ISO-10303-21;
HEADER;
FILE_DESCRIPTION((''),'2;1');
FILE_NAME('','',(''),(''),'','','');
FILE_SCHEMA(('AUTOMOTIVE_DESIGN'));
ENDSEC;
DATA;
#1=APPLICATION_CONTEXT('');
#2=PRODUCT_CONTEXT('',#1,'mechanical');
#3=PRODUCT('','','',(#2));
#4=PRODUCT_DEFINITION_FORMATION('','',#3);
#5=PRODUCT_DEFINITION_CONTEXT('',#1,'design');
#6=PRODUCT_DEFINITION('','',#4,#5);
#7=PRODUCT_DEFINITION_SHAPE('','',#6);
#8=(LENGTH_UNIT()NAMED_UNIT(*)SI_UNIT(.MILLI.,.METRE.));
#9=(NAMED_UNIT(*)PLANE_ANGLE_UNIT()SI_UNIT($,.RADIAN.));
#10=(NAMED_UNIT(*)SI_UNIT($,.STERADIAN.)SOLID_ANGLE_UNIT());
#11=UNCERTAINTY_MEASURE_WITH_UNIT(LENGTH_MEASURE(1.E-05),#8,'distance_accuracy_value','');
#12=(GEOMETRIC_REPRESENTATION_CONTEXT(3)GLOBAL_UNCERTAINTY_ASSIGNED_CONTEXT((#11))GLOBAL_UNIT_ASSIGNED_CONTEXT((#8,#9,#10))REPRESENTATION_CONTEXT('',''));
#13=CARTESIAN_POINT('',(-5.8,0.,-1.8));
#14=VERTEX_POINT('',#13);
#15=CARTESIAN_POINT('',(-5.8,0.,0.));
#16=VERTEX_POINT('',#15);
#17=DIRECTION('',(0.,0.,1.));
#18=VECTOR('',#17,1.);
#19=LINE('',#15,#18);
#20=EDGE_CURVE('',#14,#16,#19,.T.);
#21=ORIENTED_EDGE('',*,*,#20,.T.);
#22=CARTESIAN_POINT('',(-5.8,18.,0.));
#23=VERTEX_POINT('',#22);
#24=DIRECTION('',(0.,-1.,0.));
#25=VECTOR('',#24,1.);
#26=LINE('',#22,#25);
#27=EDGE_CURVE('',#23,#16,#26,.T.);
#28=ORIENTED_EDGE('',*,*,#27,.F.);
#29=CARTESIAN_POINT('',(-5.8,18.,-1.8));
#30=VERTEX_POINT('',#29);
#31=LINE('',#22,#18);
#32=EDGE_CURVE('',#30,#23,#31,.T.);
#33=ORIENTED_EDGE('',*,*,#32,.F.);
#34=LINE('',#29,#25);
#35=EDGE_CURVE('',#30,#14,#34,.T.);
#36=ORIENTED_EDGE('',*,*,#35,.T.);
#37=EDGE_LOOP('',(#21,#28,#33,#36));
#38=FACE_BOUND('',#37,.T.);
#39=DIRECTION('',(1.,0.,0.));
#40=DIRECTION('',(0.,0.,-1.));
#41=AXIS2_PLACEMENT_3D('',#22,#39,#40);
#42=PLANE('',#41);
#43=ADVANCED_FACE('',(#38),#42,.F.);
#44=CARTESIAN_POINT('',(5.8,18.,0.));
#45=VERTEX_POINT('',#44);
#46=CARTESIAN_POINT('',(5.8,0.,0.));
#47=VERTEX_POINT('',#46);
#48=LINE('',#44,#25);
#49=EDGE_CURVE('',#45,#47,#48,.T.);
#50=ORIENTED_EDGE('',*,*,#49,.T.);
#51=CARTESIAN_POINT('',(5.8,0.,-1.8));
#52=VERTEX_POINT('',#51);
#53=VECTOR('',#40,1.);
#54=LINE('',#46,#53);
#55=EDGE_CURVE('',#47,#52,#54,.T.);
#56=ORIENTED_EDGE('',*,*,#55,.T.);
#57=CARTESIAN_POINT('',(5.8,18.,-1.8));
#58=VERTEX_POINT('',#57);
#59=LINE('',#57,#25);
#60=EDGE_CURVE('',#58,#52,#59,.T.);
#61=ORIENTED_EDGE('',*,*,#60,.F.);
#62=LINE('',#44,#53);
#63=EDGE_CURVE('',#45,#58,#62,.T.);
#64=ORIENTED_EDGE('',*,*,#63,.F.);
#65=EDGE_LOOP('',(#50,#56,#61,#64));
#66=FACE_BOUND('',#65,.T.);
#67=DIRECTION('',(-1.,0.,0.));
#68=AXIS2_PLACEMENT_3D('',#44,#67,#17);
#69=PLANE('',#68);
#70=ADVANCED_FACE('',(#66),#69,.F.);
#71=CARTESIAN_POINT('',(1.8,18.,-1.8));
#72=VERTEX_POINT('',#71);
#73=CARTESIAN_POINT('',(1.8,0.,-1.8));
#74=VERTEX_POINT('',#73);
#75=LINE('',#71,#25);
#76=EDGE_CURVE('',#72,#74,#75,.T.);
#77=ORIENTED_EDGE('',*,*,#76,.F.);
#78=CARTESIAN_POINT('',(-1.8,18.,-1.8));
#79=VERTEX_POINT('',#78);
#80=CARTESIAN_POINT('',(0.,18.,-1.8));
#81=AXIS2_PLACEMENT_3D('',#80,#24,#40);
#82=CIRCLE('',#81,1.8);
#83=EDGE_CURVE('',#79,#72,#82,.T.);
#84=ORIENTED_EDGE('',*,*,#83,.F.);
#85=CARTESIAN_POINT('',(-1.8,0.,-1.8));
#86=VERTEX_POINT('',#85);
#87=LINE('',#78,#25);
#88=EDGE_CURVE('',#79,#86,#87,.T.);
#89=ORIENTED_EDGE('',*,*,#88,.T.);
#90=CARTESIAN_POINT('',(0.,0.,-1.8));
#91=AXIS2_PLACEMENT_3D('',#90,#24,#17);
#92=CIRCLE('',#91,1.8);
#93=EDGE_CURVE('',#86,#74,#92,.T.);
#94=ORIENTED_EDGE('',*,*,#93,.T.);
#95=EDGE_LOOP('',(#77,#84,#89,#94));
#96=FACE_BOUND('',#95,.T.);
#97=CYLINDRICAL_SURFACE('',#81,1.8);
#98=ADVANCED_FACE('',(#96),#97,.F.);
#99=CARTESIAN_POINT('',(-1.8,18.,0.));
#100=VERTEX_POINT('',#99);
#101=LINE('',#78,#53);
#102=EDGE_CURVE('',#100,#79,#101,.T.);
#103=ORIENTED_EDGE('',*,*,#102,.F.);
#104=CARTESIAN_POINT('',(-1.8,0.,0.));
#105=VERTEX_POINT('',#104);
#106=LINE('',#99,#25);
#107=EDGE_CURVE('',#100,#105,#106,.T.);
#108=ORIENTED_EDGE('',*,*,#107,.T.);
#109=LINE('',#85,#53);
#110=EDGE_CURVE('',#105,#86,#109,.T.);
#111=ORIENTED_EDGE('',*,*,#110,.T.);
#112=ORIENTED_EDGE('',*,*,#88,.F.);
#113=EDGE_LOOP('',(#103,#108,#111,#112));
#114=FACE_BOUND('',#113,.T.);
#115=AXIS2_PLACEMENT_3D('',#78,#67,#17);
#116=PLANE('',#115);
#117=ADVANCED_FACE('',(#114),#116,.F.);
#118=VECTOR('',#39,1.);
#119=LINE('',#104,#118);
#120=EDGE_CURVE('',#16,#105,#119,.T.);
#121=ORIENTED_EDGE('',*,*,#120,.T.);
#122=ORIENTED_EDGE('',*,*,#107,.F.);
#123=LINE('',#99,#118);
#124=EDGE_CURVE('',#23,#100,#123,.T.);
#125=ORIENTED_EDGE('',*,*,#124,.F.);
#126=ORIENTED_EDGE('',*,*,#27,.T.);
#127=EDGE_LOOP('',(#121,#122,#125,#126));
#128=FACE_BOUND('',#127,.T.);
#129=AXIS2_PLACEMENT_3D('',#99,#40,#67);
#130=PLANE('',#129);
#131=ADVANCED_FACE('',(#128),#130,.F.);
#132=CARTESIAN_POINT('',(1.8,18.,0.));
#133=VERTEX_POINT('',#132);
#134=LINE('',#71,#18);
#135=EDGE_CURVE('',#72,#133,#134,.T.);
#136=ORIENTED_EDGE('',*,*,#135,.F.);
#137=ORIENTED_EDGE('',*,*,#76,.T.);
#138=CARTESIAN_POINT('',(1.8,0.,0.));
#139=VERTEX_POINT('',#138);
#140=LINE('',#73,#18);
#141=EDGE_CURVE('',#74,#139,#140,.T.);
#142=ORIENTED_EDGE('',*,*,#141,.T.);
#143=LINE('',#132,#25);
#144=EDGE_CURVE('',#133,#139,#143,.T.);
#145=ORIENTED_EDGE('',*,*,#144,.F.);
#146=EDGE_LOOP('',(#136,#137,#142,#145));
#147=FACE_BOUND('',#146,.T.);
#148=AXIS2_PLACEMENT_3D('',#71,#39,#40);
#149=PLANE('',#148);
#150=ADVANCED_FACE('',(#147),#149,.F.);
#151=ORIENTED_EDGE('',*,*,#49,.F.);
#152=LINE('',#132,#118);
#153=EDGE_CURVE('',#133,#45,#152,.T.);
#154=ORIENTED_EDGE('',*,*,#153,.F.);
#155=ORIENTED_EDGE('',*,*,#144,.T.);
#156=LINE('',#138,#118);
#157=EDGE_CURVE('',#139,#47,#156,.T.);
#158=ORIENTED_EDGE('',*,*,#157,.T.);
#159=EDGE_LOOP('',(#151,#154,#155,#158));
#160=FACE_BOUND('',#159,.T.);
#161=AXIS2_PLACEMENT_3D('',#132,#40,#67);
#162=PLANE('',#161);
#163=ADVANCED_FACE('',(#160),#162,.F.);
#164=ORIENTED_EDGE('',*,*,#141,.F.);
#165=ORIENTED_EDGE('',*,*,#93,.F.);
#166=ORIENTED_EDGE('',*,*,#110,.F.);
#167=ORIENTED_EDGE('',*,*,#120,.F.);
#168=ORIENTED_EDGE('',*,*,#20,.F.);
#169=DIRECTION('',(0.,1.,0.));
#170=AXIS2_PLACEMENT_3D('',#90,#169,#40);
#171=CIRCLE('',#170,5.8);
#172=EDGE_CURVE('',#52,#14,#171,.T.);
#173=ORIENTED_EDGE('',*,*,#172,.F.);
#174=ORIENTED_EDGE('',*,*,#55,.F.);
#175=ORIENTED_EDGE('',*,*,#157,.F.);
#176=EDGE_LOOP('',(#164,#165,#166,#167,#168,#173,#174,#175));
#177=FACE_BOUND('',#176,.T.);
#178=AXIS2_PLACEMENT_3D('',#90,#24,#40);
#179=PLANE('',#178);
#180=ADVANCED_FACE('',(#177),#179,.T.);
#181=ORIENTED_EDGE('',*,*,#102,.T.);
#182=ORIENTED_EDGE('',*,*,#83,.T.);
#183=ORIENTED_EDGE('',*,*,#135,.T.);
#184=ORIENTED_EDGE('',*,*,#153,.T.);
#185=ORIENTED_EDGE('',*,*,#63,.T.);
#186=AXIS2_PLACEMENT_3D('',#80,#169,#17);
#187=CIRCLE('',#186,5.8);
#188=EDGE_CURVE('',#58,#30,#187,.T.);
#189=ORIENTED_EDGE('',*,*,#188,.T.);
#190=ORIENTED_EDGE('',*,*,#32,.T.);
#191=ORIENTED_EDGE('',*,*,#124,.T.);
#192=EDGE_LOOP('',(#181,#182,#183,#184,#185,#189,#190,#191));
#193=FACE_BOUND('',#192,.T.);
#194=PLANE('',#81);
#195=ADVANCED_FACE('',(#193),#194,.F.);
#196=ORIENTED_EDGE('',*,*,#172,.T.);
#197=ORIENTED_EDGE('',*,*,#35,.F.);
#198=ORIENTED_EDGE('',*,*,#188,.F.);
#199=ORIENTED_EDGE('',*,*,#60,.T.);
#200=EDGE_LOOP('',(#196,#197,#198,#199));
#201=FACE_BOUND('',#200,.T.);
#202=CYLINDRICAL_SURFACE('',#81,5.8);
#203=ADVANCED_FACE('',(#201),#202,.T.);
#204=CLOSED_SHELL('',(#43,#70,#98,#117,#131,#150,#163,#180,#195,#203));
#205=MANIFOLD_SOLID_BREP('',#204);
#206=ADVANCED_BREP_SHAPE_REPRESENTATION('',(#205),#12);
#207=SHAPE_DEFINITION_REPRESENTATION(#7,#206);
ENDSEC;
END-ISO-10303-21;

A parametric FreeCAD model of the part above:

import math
import FreeCAD as App
import Part
import Sketcher

V = App.Vector

doc = App.newDocument("Part")
body = doc.addObject("PartDesign::Body", "Body")

# Sketch on XZ plane
sketch1 = body.newObject("Sketcher::SketchObject", "Sketch")
sketch1.AttachmentSupport = (doc.getObject("XZ_Plane"), [""])
sketch1.MapMode = "FlatFace"
sketch1.addGeometry([
    Part.LineSegment(V(-5.8, 0, 0), V(-1.8, 0, 0)),  # 0
    Part.LineSegment(V(-1.8, 0, 0), V(-1.8, -1.8, 0)),  # 1
    Part.ArcOfCircle(Part.Circle(V(0, -1.8, 0), V(0, 0, 1), 1.8), math.radians(180), math.radians(270)),  # 2
    Part.ArcOfCircle(Part.Circle(V(0, -1.8, 0), V(0, 0, 1), 1.8), math.radians(-90), math.radians(0)),  # 3
    Part.LineSegment(V(1.8, -1.8, 0), V(1.8, 0, 0)),  # 4
    Part.LineSegment(V(1.8, 0, 0), V(5.8, 0, 0)),  # 5
    Part.LineSegment(V(5.8, 0, 0), V(5.8, -1.8, 0)),  # 6
    Part.ArcOfCircle(Part.Circle(V(0, -1.8, 0), V(0, 0, 1), 5.8), math.radians(-90), math.radians(0)),  # 7
    Part.ArcOfCircle(Part.Circle(V(0, -1.8, 0), V(0, 0, 1), 5.8), math.radians(180), math.radians(270)),  # 8
    Part.LineSegment(V(-5.8, -1.8, 0), V(-5.8, 0, 0)),  # 9
], False)
sketch1.addConstraint([
    Sketcher.Constraint("Coincident", 0, 2, 1, 1),
    Sketcher.Constraint("Tangent", 1, 2, 2, 1),
    Sketcher.Constraint("Tangent", 2, 2, 3, 1),
    Sketcher.Constraint("Tangent", 3, 2, 4, 1),
    Sketcher.Constraint("Coincident", 4, 2, 5, 1),
    Sketcher.Constraint("Coincident", 5, 2, 6, 1),
    Sketcher.Constraint("Tangent", 6, 2, 7, 2),
    Sketcher.Constraint("Tangent", 7, 1, 8, 2),
    Sketcher.Constraint("Tangent", 8, 1, 9, 1),
    Sketcher.Constraint("Coincident", 9, 2, 0, 1),
    Sketcher.Constraint("Horizontal", 0),
    Sketcher.Constraint("Vertical", 1),
    Sketcher.Constraint("Vertical", 4),
    Sketcher.Constraint("Horizontal", 5),
    Sketcher.Constraint("Vertical", 6),
    Sketcher.Constraint("Vertical", 9),
    Sketcher.Constraint("Coincident", 7, 3, 2, 3),
    Sketcher.Constraint("Equal", 2, 3),
    Sketcher.Constraint("Equal", 7, 8),
    Sketcher.Constraint("Symmetric", 0, 2, 4, 2, -1, 1),
    Sketcher.Constraint("PointOnObject", 0, 2, -1),
    Sketcher.Constraint("PointOnObject", 2, 2, -2),
    Sketcher.Constraint("PointOnObject", 7, 1, -2),
    Sketcher.Constraint("Radius", 2, 1.8),
    Sketcher.Constraint("Radius", 7, 5.8),
    Sketcher.Constraint("DistanceY", 1, 2, 1, 1, 1.8),
])
pad1 = body.newObject("PartDesign::Pad", "Pad")
pad1.Profile = sketch1
pad1.Length = 18
pad1.Reversed = True

doc.recompute()
